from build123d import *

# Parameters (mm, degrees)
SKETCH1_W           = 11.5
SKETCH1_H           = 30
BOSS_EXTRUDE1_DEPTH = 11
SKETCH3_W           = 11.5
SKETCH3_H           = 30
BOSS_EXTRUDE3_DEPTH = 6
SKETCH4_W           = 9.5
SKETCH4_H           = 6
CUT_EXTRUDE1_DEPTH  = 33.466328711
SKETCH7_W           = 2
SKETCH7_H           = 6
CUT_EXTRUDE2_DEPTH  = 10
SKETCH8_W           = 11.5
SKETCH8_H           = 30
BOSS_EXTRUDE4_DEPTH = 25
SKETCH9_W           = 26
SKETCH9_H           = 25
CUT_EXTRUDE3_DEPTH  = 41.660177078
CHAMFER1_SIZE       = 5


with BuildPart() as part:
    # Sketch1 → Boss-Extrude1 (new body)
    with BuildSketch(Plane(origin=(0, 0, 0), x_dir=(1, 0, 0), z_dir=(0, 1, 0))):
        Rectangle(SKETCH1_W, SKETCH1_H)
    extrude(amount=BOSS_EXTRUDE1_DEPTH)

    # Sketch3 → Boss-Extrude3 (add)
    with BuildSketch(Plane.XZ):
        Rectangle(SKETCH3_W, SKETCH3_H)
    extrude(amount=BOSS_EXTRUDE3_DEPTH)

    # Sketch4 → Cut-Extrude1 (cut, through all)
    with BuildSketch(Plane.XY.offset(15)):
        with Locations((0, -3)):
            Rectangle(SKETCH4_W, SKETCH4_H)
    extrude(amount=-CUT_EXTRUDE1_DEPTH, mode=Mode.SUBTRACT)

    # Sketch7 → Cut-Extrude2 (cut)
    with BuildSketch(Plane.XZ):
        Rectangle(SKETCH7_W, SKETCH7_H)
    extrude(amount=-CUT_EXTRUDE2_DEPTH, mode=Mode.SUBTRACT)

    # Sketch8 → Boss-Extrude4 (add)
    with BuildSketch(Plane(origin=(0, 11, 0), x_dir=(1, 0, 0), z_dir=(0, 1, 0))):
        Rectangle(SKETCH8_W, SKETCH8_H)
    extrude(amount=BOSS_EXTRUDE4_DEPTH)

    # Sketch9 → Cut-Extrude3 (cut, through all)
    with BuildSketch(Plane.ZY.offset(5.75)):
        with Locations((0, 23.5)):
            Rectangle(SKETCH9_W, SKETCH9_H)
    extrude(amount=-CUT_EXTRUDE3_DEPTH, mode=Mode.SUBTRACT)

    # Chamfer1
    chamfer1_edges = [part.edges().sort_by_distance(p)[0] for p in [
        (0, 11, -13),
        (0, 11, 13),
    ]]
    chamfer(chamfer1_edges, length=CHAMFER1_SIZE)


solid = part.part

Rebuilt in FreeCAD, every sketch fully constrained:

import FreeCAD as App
import Part
import Sketcher
Q = App.Units.Quantity


def edges_at(feature, points):
    """Names of the edges that pass closest to the given points."""
    edges = feature.Shape.Edges
    near = lambda p: min(range(len(edges)), key=lambda i: edges[i].distToShape(Part.Vertex(*p))[0])
    return sorted({f"Edge{near(p) + 1}" for p in points})

doc = App.newDocument("Part")
body = doc.addObject("PartDesign::Body", "Body")

sketch1 = doc.addObject("Sketcher::SketchObject", "Sketch")
body.addObject(sketch1)
sketch1.AttachmentSupport = (doc.XZ_Plane, [""])
sketch1.MapMode = "FlatFace"
sketch1.addGeometry(Part.LineSegment(App.Vector(-6, -15, 0), App.Vector(-6, 15, 0)), False)
sketch1.addGeometry(Part.LineSegment(App.Vector(-6, 15, 0), App.Vector(6, 15, 0)), False)
sketch1.addGeometry(Part.LineSegment(App.Vector(6, 15, 0), App.Vector(6, -15, 0)), False)
sketch1.addGeometry(Part.LineSegment(App.Vector(6, -15, 0), App.Vector(-6, -15, 0)), False)
sketch1.addConstraint(Sketcher.Constraint("Coincident", 0, 2, 1, 1))
sketch1.addConstraint(Sketcher.Constraint("Coincident", 1, 2, 2, 1))
sketch1.addConstraint(Sketcher.Constraint("Coincident", 2, 2, 3, 1))
sketch1.addConstraint(Sketcher.Constraint("Coincident", 3, 2, 0, 1))
sketch1.addConstraint(Sketcher.Constraint("Vertical", 0))
sketch1.addConstraint(Sketcher.Constraint("Horizontal", 1))
sketch1.addConstraint(Sketcher.Constraint("Vertical", 2))
sketch1.addConstraint(Sketcher.Constraint("Horizontal", 3))
sketch1.addConstraint(Sketcher.Constraint("Symmetric", 0, 2, 2, 2, -1, 1))
sketch1.addConstraint(Sketcher.Constraint("DistanceY", 0, 1, 0, 2, Q("30 mm")))
sketch1.addConstraint(Sketcher.Constraint("DistanceX", 1, 1, 1, 2, Q("11.5 mm")))
pad1 = doc.addObject("PartDesign::Pad", "Pad")
body.addObject(pad1)
pad1.Profile = sketch1
pad1.Length = 11
pad1.Reversed = True

sketch2 = doc.addObject("Sketcher::SketchObject", "Sketch001")
body.addObject(sketch2)
sketch2.AttachmentSupport = (doc.XZ_Plane, [""])
sketch2.MapMode = "FlatFace"
sketch2.addGeometry(Part.LineSegment(App.Vector(-6, 15, 0), App.Vector(-6, -15, 0)), False)
sketch2.addGeometry(Part.LineSegment(App.Vector(-6, -15, 0), App.Vector(6, -15, 0)), False)
sketch2.addGeometry(Part.LineSegment(App.Vector(6, -15, 0), App.Vector(6, 15, 0)), False)
sketch2.addGeometry(Part.LineSegment(App.Vector(6, 15, 0), App.Vector(-6, 15, 0)), False)
sketch2.addConstraint(Sketcher.Constraint("Coincident", 0, 2, 1, 1))
sketch2.addConstraint(Sketcher.Constraint("Coincident", 1, 2, 2, 1))
sketch2.addConstraint(Sketcher.Constraint("Coincident", 2, 2, 3, 1))
sketch2.addConstraint(Sketcher.Constraint("Coincident", 3, 2, 0, 1))
sketch2.addConstraint(Sketcher.Constraint("Vertical", 0))
sketch2.addConstraint(Sketcher.Constraint("Horizontal", 1))
sketch2.addConstraint(Sketcher.Constraint("Vertical", 2))
sketch2.addConstraint(Sketcher.Constraint("Horizontal", 3))
sketch2.addConstraint(Sketcher.Constraint("Symmetric", 0, 2, 2, 2, -1, 1))
sketch2.addConstraint(Sketcher.Constraint("DistanceY", 0, 2, 0, 1, Q("30 mm")))
sketch2.addConstraint(Sketcher.Constraint("DistanceX", 1, 1, 1, 2, Q("11.5 mm")))
pad2 = doc.addObject("PartDesign::Pad", "Pad001")
body.addObject(pad2)
pad2.Profile = sketch2
pad2.Length = 6

sketch3 = doc.addObject("Sketcher::SketchObject", "Sketch002")
body.addObject(sketch3)
sketch3.AttachmentSupport = (doc.XY_Plane, [""])
sketch3.MapMode = "FlatFace"
sketch3.AttachmentOffset = App.Placement(App.Vector(0, 0, 15), App.Rotation())
sketch3.addGeometry(Part.LineSegment(App.Vector(-5, 0, 0), App.Vector(-5, -6, 0)), False)
sketch3.addGeometry(Part.LineSegment(App.Vector(-5, -6, 0), App.Vector(5, -6, 0)), False)
sketch3.addGeometry(Part.LineSegment(App.Vector(5, -6, 0), App.Vector(5, 0, 0)), False)
sketch3.addGeometry(Part.LineSegment(App.Vector(5, 0, 0), App.Vector(-5, 0, 0)), False)
sketch3.addConstraint(Sketcher.Constraint("Coincident", 0, 2, 1, 1))
sketch3.addConstraint(Sketcher.Constraint("Coincident", 1, 2, 2, 1))
sketch3.addConstraint(Sketcher.Constraint("Coincident", 2, 2, 3, 1))
sketch3.addConstraint(Sketcher.Constraint("Coincident", 3, 2, 0, 1))
sketch3.addConstraint(Sketcher.Constraint("Vertical", 0))
sketch3.addConstraint(Sketcher.Constraint("Horizontal", 1))
sketch3.addConstraint(Sketcher.Constraint("Vertical", 2))
sketch3.addConstraint(Sketcher.Constraint("Horizontal", 3))
sketch3.addConstraint(Sketcher.Constraint("Symmetric", 2, 2, 3, 2, -1, 1))
sketch3.addConstraint(Sketcher.Constraint("DistanceY", 0, 2, 0, 1, Q("6 mm")))
sketch3.addConstraint(Sketcher.Constraint("DistanceX", 1, 1, 1, 2, Q("9.5 mm")))
pocket1 = doc.addObject("PartDesign::Pocket", "Pocket")
body.addObject(pocket1)
pocket1.Profile = sketch3
pocket1.Type = "ThroughAll"

sketch4 = doc.addObject("Sketcher::SketchObject", "Sketch003")
body.addObject(sketch4)
sketch4.AttachmentSupport = (doc.XZ_Plane, [""])
sketch4.MapMode = "FlatFace"
sketch4.addGeometry(Part.LineSegment(App.Vector(-1, 3, 0), App.Vector(-1, -3, 0)), False)
sketch4.addGeometry(Part.LineSegment(App.Vector(-1, -3, 0), App.Vector(1, -3, 0)), False)
sketch4.addGeometry(Part.LineSegment(App.Vector(1, -3, 0), App.Vector(1, 3, 0)), False)
sketch4.addGeometry(Part.LineSegment(App.Vector(1, 3, 0), App.Vector(-1, 3, 0)), False)
sketch4.addConstraint(Sketcher.Constraint("Coincident", 0, 2, 1, 1))
sketch4.addConstraint(Sketcher.Constraint("Coincident", 1, 2, 2, 1))
sketch4.addConstraint(Sketcher.Constraint("Coincident", 2, 2, 3, 1))
sketch4.addConstraint(Sketcher.Constraint("Coincident", 3, 2, 0, 1))
sketch4.addConstraint(Sketcher.Constraint("Vertical", 0))
sketch4.addConstraint(Sketcher.Constraint("Horizontal", 1))
sketch4.addConstraint(Sketcher.Constraint("Vertical", 2))
sketch4.addConstraint(Sketcher.Constraint("Horizontal", 3))
sketch4.addConstraint(Sketcher.Constraint("Symmetric", 0, 2, 2, 2, -1, 1))
sketch4.addConstraint(Sketcher.Constraint("DistanceX", 1, 1, 1, 2, Q("2 mm")))
sketch4.addConstraint(Sketcher.Constraint("DistanceY", 0, 2, 0, 1, Q("6 mm")))
pocket2 = doc.addObject("PartDesign::Pocket", "Pocket001")
body.addObject(pocket2)
pocket2.Profile = sketch4
pocket2.Length = 10

sketch5 = doc.addObject("Sketcher::SketchObject", "Sketch004")
body.addObject(sketch5)
sketch5.AttachmentSupport = (doc.XZ_Plane, [""])
sketch5.MapMode = "FlatFace"
sketch5.AttachmentOffset = App.Placement(App.Vector(0, 0, -11), App.Rotation())
sketch5.addGeometry(Part.LineSegment(App.Vector(-6, -15, 0), App.Vector(-6, 15, 0)), False)
sketch5.addGeometry(Part.LineSegment(App.Vector(-6, 15, 0), App.Vector(6, 15, 0)), False)
sketch5.addGeometry(Part.LineSegment(App.Vector(6, 15, 0), App.Vector(6, -15, 0)), False)
sketch5.addGeometry(Part.LineSegment(App.Vector(6, -15, 0), App.Vector(-6, -15, 0)), False)
sketch5.addConstraint(Sketcher.Constraint("Coincident", 0, 2, 1, 1))
sketch5.addConstraint(Sketcher.Constraint("Coincident", 1, 2, 2, 1))
sketch5.addConstraint(Sketcher.Constraint("Coincident", 2, 2, 3, 1))
sketch5.addConstraint(Sketcher.Constraint("Coincident", 3, 2, 0, 1))
sketch5.addConstraint(Sketcher.Constraint("Vertical", 0))
sketch5.addConstraint(Sketcher.Constraint("Horizontal", 1))
sketch5.addConstraint(Sketcher.Constraint("Vertical", 2))
sketch5.addConstraint(Sketcher.Constraint("Horizontal", 3))
sketch5.addConstraint(Sketcher.Constraint("Symmetric", 0, 2, 2, 2, -1, 1))
sketch5.addConstraint(Sketcher.Constraint("DistanceY", 0, 1, 0, 2, Q("30 mm")))
sketch5.addConstraint(Sketcher.Constraint("DistanceX", 1, 1, 1, 2, Q("11.5 mm")))
pad3 = doc.addObject("PartDesign::Pad", "Pad002")
body.addObject(pad3)
pad3.Profile = sketch5
pad3.Length = 25
pad3.Reversed = True

sketch6 = doc.addObject("Sketcher::SketchObject", "Sketch005")
body.addObject(sketch6)
sketch6.AttachmentSupport = (doc.YZ_Plane, [""])
sketch6.MapMode = "FlatFace"
sketch6.AttachmentOffset = App.Placement(App.Vector(0, 0, -5.75), App.Rotation())
sketch6.addGeometry(Part.LineSegment(App.Vector(36, -13, 0), App.Vector(11, -13, 0)), False)
sketch6.addGeometry(Part.LineSegment(App.Vector(11, -13, 0), App.Vector(11, 13, 0)), False)
sketch6.addGeometry(Part.LineSegment(App.Vector(11, 13, 0), App.Vector(36, 13, 0)), False)
sketch6.addGeometry(Part.LineSegment(App.Vector(36, 13, 0), App.Vector(36, -13, 0)), False)
sketch6.addConstraint(Sketcher.Constraint("Coincident", 0, 2, 1, 1))
sketch6.addConstraint(Sketcher.Constraint("Coincident", 1, 2, 2, 1))
sketch6.addConstraint(Sketcher.Constraint("Coincident", 2, 2, 3, 1))
sketch6.addConstraint(Sketcher.Constraint("Coincident", 3, 2, 0, 1))
sketch6.addConstraint(Sketcher.Constraint("Horizontal", 0))
sketch6.addConstraint(Sketcher.Constraint("Vertical", 1))
sketch6.addConstraint(Sketcher.Constraint("Horizontal", 2))
sketch6.addConstraint(Sketcher.Constraint("Vertical", 3))
sketch6.addConstraint(Sketcher.Constraint("DistanceX", 0, 2, 0, 1, Q("25 mm")))
sketch6.addConstraint(Sketcher.Constraint("DistanceY", 1, 1, 1, 2, Q("26 mm")))
sketch6.addConstraint(Sketcher.Constraint("DistanceX", -1, 1, 0, 2, Q("11 mm")))
sketch6.addConstraint(Sketcher.Constraint("DistanceY", 0, 2, -1, 1, Q("13 mm")))
pocket3 = doc.addObject("PartDesign::Pocket", "Pocket002")
body.addObject(pocket3)
pocket3.Profile = sketch6
pocket3.Type = "ThroughAll"
pocket3.Reversed = True
doc.recompute()

chamfer = doc.addObject("PartDesign::Chamfer", "Chamfer")
body.addObject(chamfer)
chamfer.Base = (pocket3, edges_at(pocket3, [(0, 11, -13), (0, 11, 13)]))
chamfer.Size = 5

doc.recompute()
